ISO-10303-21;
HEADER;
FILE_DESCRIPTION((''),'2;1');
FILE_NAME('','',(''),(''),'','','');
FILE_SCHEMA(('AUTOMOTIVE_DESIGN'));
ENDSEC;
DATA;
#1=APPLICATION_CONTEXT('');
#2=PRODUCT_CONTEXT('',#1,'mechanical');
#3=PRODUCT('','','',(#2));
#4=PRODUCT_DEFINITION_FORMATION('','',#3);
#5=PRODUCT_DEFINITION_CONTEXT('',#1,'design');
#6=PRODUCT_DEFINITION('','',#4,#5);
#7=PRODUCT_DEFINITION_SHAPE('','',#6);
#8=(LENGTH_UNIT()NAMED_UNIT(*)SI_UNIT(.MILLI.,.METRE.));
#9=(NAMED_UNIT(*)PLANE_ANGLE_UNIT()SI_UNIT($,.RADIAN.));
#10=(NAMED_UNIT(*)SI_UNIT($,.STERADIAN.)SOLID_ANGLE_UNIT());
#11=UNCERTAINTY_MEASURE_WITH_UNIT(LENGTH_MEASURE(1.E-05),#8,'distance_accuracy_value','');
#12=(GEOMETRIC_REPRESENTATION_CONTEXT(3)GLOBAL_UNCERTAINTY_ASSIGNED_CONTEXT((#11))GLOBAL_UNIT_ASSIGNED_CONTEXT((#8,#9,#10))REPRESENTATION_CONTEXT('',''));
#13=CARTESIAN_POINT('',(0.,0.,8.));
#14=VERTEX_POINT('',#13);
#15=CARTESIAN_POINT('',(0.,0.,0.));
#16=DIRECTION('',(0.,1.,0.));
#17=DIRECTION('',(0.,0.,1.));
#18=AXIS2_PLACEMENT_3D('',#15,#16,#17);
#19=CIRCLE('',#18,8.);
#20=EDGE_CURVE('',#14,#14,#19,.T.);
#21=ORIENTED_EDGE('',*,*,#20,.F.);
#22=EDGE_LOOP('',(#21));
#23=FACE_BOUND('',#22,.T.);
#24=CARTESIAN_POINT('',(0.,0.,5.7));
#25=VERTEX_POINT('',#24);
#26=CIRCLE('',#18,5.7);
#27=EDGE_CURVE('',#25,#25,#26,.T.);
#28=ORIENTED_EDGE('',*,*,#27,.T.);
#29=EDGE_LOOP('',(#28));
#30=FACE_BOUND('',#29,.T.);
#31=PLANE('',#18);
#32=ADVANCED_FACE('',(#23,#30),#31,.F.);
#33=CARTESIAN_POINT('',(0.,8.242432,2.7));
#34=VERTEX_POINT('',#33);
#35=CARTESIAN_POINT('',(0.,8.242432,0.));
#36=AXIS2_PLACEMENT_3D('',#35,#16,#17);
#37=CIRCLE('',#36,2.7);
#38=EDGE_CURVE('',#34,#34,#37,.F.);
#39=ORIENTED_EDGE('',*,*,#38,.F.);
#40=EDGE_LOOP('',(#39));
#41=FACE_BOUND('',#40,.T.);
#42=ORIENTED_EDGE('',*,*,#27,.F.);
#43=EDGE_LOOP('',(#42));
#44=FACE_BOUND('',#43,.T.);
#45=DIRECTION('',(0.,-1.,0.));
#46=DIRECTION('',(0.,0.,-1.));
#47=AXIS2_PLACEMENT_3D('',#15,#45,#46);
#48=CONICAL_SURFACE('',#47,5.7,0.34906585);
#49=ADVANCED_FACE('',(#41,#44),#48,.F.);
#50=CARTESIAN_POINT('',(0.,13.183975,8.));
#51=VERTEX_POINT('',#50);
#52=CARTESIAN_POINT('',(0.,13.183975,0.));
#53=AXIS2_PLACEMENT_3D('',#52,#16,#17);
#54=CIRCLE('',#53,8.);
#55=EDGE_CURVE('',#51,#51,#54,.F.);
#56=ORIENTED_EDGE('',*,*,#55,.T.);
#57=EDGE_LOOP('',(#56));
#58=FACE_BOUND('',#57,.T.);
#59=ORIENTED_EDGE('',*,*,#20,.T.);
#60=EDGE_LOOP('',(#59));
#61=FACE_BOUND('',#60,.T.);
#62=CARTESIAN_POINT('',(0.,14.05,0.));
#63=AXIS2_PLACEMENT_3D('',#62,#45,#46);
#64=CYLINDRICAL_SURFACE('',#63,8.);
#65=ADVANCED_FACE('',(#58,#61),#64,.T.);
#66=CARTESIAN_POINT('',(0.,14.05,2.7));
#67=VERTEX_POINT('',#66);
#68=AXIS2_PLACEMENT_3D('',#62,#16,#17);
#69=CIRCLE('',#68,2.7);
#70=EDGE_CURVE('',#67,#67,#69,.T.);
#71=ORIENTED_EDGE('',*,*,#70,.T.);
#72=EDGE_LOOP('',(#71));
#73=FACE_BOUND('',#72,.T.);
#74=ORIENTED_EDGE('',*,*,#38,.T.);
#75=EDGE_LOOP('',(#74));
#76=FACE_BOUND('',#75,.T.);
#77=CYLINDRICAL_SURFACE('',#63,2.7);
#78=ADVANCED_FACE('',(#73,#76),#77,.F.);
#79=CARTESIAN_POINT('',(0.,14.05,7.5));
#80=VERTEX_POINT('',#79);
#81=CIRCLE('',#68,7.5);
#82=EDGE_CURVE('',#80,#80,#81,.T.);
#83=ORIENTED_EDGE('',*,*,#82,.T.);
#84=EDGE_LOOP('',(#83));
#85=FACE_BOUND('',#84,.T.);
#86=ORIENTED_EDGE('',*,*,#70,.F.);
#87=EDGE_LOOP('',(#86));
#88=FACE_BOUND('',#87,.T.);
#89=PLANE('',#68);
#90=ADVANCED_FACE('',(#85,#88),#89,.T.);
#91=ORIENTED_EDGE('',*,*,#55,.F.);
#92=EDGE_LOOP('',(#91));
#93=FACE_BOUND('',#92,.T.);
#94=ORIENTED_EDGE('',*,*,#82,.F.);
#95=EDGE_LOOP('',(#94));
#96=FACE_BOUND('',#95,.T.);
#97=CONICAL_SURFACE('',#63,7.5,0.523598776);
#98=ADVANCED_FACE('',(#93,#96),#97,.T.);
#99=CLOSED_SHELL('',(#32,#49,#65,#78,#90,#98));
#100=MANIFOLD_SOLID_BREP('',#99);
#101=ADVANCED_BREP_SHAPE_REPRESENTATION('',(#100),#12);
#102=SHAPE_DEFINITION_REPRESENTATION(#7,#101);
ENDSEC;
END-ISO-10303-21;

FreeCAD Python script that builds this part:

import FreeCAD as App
import Part
import Sketcher
from FreeCAD import Vector
Q = App.Units.Quantity


def edges_at(feature, points):
    """Names of the edges that pass closest to the given points."""
    edges = feature.Shape.Edges
    near = lambda p: min(range(len(edges)), key=lambda i: edges[i].distToShape(Part.Vertex(*p))[0])
    return sorted({f"Edge{near(p) + 1}" for p in points})

doc = App.newDocument("Part")
params = doc.addObject("Spreadsheet::Sheet", "Params")
for row, (alias, value) in enumerate([
    ("sketch1_diameter", "16 mm"),
    ("sketch1_diameter2", "5.4 mm"),
    ("pad1_length", "14.05 mm"),
    ("chamfer_size", "3 mm"),
    ("chamfer_size2", "8.242432 mm"),
    ("chamfer2_size", "0.5 mm"),
    ("chamfer2_size2", "0.866025 mm"),
], start=1):
    params.set(f"A{row}", alias)
    params.set(f"B{row}", "=" + value)
    params.setAlias(f"B{row}", alias)

body = doc.addObject("PartDesign::Body", "Body")

sketch1 = body.newObject("Sketcher::SketchObject", "Sketch")
sketch1.AttachmentSupport = (doc.getObject("XZ_Plane"), [""])
sketch1.MapMode = "FlatFace"
sketch1.addGeometry([
    Part.Circle(Vector(0, 0, 0), Vector(0, 0, 1), 8),
    Part.Circle(Vector(0, 0, 0), Vector(0, 0, 1), 2.7),
], False)
sketch1.addConstraint([
    Sketcher.Constraint("Coincident", 0, 3, -1, 1),
    Sketcher.Constraint("Coincident", 1, 3, -1, 1),
    Sketcher.Constraint("Diameter", 0, Q("16 mm")),
    Sketcher.Constraint("Diameter", 1, Q("5.4 mm")),
])
sketch1.setExpression("Constraints[2]", "Params.sketch1_diameter")
sketch1.setExpression("Constraints[3]", "Params.sketch1_diameter2")
pad1 = body.newObject("PartDesign::Pad", "Pad")
pad1.Profile = sketch1
pad1.setExpression("Length", "Params.pad1_length")
pad1.Reversed = True
doc.recompute()

chamfer = body.newObject("PartDesign::Chamfer", "Chamfer")
chamfer.Base = (pad1, edges_at(pad1, [(0, 0, -2.7)]))
chamfer.ChamferType = "Two distances"
chamfer.setExpression("Size", "Params.chamfer_size")
chamfer.setExpression("Size2", "Params.chamfer_size2")
chamfer.FlipDirection = True
doc.recompute()

chamfer2 = body.newObject("PartDesign::Chamfer", "Chamfer001")
chamfer2.Base = (chamfer, edges_at(chamfer, [(0, 14.05, -8)]))
chamfer2.ChamferType = "Two distances"
chamfer2.setExpression("Size", "Params.chamfer2_size")
chamfer2.setExpression("Size2", "Params.chamfer2_size2")

doc.recompute()
